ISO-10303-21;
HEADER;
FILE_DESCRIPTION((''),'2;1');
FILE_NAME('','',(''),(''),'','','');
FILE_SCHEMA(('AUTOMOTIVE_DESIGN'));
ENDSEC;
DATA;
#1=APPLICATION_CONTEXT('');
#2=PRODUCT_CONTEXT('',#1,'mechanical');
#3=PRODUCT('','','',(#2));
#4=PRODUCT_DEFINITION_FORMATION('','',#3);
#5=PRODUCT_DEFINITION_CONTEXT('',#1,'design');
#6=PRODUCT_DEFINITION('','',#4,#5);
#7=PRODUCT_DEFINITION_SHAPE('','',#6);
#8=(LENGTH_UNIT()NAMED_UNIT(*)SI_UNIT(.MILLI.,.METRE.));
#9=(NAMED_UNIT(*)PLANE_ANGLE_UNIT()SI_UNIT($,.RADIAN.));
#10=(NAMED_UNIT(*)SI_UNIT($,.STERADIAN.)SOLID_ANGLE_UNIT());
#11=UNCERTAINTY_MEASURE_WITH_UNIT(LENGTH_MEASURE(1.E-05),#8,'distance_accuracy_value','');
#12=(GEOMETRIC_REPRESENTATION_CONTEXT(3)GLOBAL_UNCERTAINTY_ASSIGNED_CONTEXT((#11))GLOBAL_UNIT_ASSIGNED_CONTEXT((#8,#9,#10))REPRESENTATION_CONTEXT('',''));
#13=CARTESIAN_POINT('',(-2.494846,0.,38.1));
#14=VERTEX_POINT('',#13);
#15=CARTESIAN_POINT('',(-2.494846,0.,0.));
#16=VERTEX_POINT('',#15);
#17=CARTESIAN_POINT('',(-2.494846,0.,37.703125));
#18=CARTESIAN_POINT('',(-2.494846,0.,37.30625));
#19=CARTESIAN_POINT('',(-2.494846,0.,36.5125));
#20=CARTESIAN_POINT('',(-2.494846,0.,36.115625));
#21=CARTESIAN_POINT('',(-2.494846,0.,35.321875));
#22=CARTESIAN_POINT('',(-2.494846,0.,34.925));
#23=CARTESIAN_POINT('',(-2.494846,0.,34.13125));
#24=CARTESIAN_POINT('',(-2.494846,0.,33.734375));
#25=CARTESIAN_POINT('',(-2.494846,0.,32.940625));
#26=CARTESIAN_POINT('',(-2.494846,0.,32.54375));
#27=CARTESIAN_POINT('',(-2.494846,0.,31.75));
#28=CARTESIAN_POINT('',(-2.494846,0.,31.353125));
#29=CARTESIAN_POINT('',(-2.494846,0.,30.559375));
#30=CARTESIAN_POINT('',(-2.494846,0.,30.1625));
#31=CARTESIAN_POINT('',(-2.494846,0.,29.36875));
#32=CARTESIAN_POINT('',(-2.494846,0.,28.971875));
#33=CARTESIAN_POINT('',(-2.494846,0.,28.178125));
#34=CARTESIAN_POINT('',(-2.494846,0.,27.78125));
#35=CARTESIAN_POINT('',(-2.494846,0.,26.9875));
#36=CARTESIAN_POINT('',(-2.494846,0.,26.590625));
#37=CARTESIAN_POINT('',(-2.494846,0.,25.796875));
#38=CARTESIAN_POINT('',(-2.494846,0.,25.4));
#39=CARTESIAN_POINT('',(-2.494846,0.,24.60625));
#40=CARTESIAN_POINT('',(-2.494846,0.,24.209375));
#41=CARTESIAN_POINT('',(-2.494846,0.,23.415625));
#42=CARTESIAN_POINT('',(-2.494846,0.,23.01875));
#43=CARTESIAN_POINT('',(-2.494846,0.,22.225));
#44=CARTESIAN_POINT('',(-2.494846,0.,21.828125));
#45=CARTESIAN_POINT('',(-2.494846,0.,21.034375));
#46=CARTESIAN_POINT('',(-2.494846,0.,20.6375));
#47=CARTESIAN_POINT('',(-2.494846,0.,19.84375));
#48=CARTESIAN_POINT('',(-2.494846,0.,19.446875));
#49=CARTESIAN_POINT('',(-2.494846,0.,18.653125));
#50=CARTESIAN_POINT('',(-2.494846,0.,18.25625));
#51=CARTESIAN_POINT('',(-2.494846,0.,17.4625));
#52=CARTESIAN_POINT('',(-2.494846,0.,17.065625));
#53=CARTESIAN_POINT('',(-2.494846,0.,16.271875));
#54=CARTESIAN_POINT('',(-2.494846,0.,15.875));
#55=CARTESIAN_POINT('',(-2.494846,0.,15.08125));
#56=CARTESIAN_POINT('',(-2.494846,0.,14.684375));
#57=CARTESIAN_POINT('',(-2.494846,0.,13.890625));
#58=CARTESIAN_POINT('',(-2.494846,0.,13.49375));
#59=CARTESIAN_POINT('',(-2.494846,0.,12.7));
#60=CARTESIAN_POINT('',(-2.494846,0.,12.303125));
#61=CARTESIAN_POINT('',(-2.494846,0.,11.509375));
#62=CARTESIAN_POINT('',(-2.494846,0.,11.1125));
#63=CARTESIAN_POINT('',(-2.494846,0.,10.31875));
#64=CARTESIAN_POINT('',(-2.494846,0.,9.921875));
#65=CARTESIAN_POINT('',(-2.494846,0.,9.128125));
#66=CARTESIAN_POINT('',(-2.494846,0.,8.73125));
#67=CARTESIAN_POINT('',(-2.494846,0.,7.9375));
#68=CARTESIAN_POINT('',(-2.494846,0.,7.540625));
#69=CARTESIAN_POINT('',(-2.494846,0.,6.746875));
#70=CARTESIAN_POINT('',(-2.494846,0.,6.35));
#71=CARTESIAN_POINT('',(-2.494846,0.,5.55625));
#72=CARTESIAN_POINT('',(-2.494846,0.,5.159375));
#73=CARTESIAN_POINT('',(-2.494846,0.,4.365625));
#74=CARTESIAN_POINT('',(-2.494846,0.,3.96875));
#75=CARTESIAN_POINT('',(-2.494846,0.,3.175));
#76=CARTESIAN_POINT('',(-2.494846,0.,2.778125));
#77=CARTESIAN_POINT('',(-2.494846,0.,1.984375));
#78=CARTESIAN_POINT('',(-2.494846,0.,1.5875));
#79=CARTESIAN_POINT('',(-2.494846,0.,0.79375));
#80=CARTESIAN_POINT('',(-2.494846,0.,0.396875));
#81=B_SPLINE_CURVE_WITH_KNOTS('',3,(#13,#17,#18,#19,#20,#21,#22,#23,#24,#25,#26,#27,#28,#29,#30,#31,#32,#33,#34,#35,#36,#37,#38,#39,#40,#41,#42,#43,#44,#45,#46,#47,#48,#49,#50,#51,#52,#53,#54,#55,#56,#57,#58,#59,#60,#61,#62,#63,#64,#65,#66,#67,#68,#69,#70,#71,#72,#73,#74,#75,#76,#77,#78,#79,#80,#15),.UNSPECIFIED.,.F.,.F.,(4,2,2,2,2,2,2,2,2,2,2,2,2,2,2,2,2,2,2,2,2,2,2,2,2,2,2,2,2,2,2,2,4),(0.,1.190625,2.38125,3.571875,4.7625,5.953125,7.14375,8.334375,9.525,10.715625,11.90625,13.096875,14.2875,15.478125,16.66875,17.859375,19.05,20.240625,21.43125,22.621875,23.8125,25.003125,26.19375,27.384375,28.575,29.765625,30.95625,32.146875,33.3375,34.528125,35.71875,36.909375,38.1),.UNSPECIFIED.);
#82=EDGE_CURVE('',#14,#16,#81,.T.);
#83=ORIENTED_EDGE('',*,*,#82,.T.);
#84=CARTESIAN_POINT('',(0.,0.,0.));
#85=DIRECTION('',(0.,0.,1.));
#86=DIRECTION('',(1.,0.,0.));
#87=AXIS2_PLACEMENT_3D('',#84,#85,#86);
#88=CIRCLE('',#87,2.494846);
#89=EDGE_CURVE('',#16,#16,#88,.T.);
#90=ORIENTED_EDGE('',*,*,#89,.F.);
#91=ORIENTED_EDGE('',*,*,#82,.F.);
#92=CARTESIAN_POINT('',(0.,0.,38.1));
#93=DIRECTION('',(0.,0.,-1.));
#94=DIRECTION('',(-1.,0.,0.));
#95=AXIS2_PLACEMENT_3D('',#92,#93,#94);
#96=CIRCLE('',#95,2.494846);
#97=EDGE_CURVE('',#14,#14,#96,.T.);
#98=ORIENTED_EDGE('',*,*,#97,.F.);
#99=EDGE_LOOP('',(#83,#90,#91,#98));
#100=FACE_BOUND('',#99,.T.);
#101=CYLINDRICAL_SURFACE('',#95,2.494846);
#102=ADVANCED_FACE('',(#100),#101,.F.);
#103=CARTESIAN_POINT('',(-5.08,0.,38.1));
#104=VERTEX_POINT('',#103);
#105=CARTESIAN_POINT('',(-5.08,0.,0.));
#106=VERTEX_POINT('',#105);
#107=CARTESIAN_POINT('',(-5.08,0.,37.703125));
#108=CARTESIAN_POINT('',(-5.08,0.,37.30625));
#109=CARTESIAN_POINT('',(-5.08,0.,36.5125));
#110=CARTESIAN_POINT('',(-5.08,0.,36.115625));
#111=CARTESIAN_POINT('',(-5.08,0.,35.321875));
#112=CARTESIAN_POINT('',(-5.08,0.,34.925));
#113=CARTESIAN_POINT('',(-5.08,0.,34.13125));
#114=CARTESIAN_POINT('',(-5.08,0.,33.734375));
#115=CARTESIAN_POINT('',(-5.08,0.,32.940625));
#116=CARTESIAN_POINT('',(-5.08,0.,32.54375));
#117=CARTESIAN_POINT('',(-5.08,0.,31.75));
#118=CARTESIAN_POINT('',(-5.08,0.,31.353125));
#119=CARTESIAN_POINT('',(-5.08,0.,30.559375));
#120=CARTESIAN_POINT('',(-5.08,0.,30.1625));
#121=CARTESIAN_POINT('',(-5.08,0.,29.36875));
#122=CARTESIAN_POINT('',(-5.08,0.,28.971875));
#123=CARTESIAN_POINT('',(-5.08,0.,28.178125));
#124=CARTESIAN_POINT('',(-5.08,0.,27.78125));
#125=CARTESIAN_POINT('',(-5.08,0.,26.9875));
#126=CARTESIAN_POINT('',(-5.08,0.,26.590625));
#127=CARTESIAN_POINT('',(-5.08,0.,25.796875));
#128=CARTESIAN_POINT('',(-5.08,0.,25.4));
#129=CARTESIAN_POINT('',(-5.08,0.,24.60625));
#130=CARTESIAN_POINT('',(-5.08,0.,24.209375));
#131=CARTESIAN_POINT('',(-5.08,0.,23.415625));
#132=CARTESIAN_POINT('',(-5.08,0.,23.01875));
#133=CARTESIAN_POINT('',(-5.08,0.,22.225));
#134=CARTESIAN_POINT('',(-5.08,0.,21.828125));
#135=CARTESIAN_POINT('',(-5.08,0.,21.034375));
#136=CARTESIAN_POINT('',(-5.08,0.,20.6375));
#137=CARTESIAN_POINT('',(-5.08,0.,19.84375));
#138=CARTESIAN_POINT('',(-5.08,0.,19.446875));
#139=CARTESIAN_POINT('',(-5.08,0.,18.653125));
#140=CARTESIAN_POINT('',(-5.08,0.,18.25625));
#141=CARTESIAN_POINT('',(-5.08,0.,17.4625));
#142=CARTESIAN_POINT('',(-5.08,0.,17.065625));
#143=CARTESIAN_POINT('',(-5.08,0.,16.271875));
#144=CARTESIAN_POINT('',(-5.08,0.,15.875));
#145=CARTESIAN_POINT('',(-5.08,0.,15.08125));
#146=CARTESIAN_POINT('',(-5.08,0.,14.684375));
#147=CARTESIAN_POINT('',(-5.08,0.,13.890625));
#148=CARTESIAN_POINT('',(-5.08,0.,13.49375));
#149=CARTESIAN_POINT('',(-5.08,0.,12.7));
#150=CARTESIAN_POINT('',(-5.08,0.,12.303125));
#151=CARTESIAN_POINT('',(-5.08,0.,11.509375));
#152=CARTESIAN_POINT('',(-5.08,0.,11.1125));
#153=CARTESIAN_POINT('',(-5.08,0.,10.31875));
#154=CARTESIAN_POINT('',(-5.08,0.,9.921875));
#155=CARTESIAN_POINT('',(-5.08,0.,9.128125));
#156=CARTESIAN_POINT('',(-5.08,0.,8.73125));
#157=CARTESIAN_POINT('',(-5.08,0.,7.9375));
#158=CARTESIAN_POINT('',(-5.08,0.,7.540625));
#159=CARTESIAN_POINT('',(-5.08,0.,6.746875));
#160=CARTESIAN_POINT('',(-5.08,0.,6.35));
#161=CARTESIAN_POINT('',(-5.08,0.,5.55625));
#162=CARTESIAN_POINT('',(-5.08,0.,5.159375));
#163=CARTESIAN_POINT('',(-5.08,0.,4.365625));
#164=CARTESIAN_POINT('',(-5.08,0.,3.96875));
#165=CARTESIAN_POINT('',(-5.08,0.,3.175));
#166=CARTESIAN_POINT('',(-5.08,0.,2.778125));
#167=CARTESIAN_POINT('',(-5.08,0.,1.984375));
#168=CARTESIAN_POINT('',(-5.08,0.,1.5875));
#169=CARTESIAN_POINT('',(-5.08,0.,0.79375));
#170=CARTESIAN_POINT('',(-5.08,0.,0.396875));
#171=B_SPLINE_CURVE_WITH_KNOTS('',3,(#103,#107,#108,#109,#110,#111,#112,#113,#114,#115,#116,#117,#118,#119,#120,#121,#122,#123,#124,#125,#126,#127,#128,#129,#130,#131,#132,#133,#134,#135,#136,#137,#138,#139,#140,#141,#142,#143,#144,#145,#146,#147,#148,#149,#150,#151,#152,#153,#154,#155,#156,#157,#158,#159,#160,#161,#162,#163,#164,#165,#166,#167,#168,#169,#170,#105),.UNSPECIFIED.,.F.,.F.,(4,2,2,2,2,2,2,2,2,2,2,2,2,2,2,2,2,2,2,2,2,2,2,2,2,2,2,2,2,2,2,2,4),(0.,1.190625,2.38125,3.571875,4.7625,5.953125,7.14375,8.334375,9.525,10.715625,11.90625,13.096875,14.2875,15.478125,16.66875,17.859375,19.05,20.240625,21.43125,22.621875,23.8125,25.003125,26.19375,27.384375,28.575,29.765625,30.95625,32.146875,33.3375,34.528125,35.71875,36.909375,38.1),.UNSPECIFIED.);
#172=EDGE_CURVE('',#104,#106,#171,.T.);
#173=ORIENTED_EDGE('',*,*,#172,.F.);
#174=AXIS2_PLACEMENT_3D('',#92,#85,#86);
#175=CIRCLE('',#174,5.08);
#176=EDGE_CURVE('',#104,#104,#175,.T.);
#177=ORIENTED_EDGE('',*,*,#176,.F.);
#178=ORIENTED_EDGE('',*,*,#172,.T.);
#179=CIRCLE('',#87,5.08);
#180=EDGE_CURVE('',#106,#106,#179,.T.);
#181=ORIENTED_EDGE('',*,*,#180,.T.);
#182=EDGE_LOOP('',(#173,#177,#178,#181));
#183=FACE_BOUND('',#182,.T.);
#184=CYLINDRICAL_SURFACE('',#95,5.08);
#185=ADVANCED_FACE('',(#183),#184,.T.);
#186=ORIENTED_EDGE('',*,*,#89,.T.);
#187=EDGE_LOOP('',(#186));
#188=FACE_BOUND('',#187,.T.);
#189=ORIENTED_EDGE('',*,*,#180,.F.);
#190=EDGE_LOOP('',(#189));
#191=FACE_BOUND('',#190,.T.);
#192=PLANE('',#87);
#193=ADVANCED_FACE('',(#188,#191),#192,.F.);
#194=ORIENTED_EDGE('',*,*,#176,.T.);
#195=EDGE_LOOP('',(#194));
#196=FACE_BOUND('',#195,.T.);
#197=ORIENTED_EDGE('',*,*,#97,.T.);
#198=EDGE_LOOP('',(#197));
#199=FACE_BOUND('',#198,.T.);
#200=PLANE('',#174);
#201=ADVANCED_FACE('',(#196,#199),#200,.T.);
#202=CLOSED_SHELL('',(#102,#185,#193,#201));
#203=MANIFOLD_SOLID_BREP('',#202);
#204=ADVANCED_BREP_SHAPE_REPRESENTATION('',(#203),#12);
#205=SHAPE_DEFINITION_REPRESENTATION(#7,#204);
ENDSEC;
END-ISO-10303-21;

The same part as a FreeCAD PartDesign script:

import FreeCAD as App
import Part
import Sketcher
Q = App.Units.Quantity

doc = App.newDocument("Part")
body = doc.addObject("PartDesign::Body", "Body")

# Sketch on XY plane
sketch1 = body.newObject("Sketcher::SketchObject", "Sketch")
sketch1.AttachmentSupport = (doc.getObject("XY_Plane"), [""])
sketch1.MapMode = "FlatFace"
sketch1.addGeometry(Part.Circle(App.Vector(0, 0, 0), App.Vector(0, 0, 1), 5), False)
sketch1.addConstraint([
    Sketcher.Constraint("Coincident", 0, 3, -1, 1),
    Sketcher.Constraint("Diameter", 0, Q("0.4 in")),
])
pad1 = body.newObject("PartDesign::Pad", "Pad")
pad1.Profile = sketch1
pad1.Length = Q("1.5 in")

# Sketch on XY plane
sketch2 = body.newObject("Sketcher::SketchObject", "Sketch001")
sketch2.AttachmentSupport = (doc.getObject("XY_Plane"), [""])
sketch2.MapMode = "FlatFace"
sketch2.addGeometry(Part.Circle(App.Vector(0, 0, 0), App.Vector(0, 0, 1), 2.5), False)
sketch2.addConstraint([
    Sketcher.Constraint("Coincident", 0, 3, -1, 1),
    Sketcher.Constraint("Diameter", 0, Q("4.989693 mm")),
])
pocket1 = body.newObject("PartDesign::Pocket", "Pocket")
pocket1.Profile = sketch2
pocket1.Type = "ThroughAll"
pocket1.Midplane = True

doc.recompute()
